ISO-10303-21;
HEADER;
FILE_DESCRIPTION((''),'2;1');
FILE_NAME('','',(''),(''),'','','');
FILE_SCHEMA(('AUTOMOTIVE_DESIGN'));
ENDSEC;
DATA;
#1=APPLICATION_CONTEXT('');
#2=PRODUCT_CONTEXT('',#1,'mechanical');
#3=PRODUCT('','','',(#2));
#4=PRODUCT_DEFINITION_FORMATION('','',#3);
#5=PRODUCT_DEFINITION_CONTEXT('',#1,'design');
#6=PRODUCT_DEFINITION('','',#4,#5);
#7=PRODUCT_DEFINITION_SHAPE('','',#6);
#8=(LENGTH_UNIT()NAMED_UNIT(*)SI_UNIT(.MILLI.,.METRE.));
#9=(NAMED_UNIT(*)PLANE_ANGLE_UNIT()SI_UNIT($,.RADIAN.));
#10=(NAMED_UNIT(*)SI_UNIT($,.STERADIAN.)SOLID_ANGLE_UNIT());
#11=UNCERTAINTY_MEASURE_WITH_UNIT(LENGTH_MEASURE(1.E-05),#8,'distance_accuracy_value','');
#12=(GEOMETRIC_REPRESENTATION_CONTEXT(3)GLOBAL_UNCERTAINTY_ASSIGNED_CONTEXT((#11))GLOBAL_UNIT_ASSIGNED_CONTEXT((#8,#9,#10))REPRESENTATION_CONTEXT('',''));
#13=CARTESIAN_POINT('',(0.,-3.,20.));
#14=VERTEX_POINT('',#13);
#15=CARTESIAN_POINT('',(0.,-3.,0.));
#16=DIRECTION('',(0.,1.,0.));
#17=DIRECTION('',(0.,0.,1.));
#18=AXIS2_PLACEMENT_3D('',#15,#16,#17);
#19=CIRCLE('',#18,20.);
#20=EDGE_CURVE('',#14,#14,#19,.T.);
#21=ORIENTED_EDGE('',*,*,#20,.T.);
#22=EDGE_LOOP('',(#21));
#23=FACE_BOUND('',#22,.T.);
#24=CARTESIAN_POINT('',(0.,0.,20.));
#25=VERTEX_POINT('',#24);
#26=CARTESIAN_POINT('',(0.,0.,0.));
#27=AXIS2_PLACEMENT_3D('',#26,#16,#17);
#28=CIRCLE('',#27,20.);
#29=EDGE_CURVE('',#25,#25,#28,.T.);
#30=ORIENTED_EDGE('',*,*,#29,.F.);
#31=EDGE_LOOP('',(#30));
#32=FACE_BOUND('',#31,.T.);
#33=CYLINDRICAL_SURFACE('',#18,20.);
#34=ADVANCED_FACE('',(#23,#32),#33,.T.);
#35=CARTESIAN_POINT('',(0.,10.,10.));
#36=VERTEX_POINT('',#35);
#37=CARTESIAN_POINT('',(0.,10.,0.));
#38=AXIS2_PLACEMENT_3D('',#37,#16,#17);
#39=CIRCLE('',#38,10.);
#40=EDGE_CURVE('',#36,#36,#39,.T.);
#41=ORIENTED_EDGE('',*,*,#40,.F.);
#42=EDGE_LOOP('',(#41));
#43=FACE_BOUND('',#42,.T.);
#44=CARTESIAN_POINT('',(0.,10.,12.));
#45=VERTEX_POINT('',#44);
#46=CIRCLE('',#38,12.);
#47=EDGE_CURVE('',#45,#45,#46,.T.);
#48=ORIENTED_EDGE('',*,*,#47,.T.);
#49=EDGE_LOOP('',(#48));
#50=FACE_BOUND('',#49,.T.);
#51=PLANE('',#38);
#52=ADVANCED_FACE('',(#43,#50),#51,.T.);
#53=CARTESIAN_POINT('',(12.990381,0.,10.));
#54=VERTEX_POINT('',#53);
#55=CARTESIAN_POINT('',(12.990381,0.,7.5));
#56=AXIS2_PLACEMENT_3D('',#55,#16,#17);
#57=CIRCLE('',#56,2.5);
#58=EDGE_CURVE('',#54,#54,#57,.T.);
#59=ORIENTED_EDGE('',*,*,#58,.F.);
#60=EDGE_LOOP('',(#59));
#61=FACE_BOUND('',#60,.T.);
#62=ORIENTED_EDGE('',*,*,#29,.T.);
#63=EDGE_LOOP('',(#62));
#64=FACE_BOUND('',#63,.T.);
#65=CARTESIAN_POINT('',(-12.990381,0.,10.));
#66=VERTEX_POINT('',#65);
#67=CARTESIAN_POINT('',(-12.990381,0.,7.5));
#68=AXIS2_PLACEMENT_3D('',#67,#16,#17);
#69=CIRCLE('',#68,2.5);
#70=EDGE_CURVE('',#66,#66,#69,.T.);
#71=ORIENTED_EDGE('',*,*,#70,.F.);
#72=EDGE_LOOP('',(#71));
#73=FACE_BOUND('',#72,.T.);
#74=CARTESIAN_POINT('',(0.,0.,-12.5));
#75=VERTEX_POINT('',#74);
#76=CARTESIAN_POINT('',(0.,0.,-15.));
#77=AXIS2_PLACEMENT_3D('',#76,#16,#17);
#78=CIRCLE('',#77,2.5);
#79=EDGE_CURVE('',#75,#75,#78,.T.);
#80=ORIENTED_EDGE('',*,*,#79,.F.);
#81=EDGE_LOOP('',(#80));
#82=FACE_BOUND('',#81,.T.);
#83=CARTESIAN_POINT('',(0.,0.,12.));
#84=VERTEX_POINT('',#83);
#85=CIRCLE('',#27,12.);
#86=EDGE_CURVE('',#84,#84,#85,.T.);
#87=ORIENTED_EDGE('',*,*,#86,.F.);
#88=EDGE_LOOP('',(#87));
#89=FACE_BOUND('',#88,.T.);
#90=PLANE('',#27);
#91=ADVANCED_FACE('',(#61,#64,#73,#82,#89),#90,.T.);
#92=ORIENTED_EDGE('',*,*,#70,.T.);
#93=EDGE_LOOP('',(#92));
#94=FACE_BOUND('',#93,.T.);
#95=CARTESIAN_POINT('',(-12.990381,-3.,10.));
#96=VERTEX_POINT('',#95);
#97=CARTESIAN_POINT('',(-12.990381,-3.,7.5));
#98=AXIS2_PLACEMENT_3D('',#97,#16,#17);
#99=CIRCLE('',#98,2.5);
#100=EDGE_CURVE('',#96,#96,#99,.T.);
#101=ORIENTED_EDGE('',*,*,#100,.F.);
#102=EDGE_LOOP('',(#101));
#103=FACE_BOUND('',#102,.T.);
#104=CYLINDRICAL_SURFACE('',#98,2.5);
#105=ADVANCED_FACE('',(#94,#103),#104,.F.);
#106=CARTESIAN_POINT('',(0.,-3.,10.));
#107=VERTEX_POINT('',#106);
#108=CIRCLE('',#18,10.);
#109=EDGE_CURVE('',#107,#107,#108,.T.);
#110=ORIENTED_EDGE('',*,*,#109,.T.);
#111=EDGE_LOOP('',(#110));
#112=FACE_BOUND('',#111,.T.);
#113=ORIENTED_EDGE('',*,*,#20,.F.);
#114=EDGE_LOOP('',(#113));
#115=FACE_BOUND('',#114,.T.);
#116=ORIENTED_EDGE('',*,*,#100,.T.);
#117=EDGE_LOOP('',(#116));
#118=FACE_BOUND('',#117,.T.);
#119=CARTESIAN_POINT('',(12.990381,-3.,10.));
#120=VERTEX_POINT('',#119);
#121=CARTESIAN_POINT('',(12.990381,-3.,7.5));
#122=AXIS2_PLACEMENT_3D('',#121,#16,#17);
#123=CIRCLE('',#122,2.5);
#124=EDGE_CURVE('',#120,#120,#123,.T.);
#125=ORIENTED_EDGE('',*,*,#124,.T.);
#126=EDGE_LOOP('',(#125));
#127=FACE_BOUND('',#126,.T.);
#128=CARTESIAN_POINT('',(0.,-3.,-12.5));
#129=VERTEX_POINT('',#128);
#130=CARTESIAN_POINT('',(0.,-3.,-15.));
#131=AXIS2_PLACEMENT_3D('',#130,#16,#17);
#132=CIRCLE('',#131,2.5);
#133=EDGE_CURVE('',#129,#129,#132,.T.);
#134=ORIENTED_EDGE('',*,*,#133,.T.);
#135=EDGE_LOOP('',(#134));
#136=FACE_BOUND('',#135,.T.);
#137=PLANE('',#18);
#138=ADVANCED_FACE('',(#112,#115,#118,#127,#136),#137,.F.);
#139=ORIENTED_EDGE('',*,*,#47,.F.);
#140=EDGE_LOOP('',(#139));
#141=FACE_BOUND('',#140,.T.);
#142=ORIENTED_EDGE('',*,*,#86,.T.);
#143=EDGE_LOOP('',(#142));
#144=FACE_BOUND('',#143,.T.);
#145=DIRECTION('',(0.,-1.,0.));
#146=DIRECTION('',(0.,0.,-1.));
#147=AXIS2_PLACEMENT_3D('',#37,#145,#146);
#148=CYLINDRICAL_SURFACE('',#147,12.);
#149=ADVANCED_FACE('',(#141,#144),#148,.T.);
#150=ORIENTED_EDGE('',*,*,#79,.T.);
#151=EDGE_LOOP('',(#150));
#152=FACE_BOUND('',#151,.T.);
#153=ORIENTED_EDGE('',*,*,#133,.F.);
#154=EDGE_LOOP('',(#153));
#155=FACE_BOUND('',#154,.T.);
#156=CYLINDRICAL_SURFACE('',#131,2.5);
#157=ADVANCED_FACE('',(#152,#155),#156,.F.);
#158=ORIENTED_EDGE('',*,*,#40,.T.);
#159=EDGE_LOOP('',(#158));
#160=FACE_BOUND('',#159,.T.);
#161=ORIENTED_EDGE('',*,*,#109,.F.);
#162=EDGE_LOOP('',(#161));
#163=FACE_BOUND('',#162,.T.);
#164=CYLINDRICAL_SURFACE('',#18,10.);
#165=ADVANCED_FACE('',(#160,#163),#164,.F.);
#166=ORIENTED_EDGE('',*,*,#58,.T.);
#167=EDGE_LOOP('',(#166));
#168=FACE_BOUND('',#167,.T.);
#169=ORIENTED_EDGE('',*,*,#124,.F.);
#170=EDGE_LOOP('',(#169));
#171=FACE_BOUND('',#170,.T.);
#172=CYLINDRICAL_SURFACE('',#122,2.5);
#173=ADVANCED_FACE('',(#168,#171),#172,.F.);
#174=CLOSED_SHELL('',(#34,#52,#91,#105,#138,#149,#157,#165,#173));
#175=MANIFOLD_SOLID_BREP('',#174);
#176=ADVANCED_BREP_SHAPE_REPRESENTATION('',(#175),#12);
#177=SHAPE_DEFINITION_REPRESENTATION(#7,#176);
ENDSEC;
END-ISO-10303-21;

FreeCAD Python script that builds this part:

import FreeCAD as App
import Part
import Sketcher
Q = App.Units.Quantity

doc = App.newDocument("Part")
params = doc.addObject("Spreadsheet::Sheet", "Params")
for row, (alias, value) in enumerate([
    ("sketch1_diameter", "40 mm"),
    ("sketch1_diameter2", "5 mm"),
    ("sketch1_diameter3", "20 mm"),
    ("pad1_length", "3 mm"),
    ("sketch2_diameter", "24 mm"),
    ("sketch2_diameter2", "20 mm"),
    ("pad2_length", "10 mm"),
], start=1):
    params.set(f"A{row}", alias)
    params.set(f"B{row}", "=" + value)
    params.setAlias(f"B{row}", alias)

body = doc.addObject("PartDesign::Body", "Body")

# Sketch on XZ plane
sketch1 = body.newObject("Sketcher::SketchObject", "Sketch")
sketch1.AttachmentSupport = (doc.getObject("XZ_Plane"), [""])
sketch1.MapMode = "FlatFace"
sketch1.addGeometry([
    Part.Circle(App.Vector(0, 0, 0), App.Vector(0, 0, 1), 20),  # 0
    Part.Circle(App.Vector(0, -15, 0), App.Vector(0, 0, 1), 2.5),  # 1
    Part.Circle(App.Vector(-13, 7.5, 0), App.Vector(0, 0, 1), 2.5),  # 2
    Part.Circle(App.Vector(13, 7.5, 0), App.Vector(0, 0, 1), 2.5),  # 3
    Part.Circle(App.Vector(0, 0, 0), App.Vector(0, 0, 1), 10),  # 4
], False)
sketch1.addConstraint([
    Sketcher.Constraint("Coincident", 0, 3, -1, 1),
    Sketcher.Constraint("Coincident", 4, 3, -1, 1),
    Sketcher.Constraint("Equal", 1, 2),
    Sketcher.Constraint("Equal", 2, 3),
    Sketcher.Constraint("Symmetric", 2, 3, 3, 3, -2),
    Sketcher.Constraint("PointOnObject", 1, 3, -2),
    Sketcher.Constraint("Diameter", 0, Q("40 mm")),
    Sketcher.Constraint("Diameter", 1, Q("5 mm")),
    Sketcher.Constraint("Diameter", 4, Q("20 mm")),
    Sketcher.Constraint("DistanceY", 1, 3, -1, 1, Q("15 mm")),
    Sketcher.Constraint("DistanceY", -1, 1, 2, 3, Q("7.5 mm")),
    Sketcher.Constraint("DistanceX", 2, 3, -1, 1, Q("12.990381 mm")),
])
sketch1.setExpression("Constraints[6]", "Params.sketch1_diameter")
sketch1.setExpression("Constraints[7]", "Params.sketch1_diameter2")
sketch1.setExpression("Constraints[8]", "Params.sketch1_diameter3")
pad1 = body.newObject("PartDesign::Pad", "Pad")
pad1.Profile = sketch1
pad1.setExpression("Length", "Params.pad1_length")

# Sketch on XZ plane
sketch2 = body.newObject("Sketcher::SketchObject", "Sketch001")
sketch2.AttachmentSupport = (doc.getObject("XZ_Plane"), [""])
sketch2.MapMode = "FlatFace"
sketch2.AttachmentOffset = App.Placement(App.Vector(0, 0, -10), App.Rotation())
sketch2.addGeometry([
    Part.Circle(App.Vector(0, 0, 0), App.Vector(0, 0, 1), 12),
    Part.Circle(App.Vector(0, 0, 0), App.Vector(0, 0, 1), 10),
], False)
sketch2.addConstraint([
    Sketcher.Constraint("Coincident", 0, 3, -1, 1),
    Sketcher.Constraint("Coincident", 1, 3, -1, 1),
    Sketcher.Constraint("Diameter", 0, Q("24 mm")),
    Sketcher.Constraint("Diameter", 1, Q("20 mm")),
])
sketch2.setExpression("Constraints[2]", "Params.sketch2_diameter")
sketch2.setExpression("Constraints[3]", "Params.sketch2_diameter2")
pad2 = body.newObject("PartDesign::Pad", "Pad001")
pad2.Profile = sketch2
pad2.setExpression("Length", "Params.pad2_length")

doc.recompute()
